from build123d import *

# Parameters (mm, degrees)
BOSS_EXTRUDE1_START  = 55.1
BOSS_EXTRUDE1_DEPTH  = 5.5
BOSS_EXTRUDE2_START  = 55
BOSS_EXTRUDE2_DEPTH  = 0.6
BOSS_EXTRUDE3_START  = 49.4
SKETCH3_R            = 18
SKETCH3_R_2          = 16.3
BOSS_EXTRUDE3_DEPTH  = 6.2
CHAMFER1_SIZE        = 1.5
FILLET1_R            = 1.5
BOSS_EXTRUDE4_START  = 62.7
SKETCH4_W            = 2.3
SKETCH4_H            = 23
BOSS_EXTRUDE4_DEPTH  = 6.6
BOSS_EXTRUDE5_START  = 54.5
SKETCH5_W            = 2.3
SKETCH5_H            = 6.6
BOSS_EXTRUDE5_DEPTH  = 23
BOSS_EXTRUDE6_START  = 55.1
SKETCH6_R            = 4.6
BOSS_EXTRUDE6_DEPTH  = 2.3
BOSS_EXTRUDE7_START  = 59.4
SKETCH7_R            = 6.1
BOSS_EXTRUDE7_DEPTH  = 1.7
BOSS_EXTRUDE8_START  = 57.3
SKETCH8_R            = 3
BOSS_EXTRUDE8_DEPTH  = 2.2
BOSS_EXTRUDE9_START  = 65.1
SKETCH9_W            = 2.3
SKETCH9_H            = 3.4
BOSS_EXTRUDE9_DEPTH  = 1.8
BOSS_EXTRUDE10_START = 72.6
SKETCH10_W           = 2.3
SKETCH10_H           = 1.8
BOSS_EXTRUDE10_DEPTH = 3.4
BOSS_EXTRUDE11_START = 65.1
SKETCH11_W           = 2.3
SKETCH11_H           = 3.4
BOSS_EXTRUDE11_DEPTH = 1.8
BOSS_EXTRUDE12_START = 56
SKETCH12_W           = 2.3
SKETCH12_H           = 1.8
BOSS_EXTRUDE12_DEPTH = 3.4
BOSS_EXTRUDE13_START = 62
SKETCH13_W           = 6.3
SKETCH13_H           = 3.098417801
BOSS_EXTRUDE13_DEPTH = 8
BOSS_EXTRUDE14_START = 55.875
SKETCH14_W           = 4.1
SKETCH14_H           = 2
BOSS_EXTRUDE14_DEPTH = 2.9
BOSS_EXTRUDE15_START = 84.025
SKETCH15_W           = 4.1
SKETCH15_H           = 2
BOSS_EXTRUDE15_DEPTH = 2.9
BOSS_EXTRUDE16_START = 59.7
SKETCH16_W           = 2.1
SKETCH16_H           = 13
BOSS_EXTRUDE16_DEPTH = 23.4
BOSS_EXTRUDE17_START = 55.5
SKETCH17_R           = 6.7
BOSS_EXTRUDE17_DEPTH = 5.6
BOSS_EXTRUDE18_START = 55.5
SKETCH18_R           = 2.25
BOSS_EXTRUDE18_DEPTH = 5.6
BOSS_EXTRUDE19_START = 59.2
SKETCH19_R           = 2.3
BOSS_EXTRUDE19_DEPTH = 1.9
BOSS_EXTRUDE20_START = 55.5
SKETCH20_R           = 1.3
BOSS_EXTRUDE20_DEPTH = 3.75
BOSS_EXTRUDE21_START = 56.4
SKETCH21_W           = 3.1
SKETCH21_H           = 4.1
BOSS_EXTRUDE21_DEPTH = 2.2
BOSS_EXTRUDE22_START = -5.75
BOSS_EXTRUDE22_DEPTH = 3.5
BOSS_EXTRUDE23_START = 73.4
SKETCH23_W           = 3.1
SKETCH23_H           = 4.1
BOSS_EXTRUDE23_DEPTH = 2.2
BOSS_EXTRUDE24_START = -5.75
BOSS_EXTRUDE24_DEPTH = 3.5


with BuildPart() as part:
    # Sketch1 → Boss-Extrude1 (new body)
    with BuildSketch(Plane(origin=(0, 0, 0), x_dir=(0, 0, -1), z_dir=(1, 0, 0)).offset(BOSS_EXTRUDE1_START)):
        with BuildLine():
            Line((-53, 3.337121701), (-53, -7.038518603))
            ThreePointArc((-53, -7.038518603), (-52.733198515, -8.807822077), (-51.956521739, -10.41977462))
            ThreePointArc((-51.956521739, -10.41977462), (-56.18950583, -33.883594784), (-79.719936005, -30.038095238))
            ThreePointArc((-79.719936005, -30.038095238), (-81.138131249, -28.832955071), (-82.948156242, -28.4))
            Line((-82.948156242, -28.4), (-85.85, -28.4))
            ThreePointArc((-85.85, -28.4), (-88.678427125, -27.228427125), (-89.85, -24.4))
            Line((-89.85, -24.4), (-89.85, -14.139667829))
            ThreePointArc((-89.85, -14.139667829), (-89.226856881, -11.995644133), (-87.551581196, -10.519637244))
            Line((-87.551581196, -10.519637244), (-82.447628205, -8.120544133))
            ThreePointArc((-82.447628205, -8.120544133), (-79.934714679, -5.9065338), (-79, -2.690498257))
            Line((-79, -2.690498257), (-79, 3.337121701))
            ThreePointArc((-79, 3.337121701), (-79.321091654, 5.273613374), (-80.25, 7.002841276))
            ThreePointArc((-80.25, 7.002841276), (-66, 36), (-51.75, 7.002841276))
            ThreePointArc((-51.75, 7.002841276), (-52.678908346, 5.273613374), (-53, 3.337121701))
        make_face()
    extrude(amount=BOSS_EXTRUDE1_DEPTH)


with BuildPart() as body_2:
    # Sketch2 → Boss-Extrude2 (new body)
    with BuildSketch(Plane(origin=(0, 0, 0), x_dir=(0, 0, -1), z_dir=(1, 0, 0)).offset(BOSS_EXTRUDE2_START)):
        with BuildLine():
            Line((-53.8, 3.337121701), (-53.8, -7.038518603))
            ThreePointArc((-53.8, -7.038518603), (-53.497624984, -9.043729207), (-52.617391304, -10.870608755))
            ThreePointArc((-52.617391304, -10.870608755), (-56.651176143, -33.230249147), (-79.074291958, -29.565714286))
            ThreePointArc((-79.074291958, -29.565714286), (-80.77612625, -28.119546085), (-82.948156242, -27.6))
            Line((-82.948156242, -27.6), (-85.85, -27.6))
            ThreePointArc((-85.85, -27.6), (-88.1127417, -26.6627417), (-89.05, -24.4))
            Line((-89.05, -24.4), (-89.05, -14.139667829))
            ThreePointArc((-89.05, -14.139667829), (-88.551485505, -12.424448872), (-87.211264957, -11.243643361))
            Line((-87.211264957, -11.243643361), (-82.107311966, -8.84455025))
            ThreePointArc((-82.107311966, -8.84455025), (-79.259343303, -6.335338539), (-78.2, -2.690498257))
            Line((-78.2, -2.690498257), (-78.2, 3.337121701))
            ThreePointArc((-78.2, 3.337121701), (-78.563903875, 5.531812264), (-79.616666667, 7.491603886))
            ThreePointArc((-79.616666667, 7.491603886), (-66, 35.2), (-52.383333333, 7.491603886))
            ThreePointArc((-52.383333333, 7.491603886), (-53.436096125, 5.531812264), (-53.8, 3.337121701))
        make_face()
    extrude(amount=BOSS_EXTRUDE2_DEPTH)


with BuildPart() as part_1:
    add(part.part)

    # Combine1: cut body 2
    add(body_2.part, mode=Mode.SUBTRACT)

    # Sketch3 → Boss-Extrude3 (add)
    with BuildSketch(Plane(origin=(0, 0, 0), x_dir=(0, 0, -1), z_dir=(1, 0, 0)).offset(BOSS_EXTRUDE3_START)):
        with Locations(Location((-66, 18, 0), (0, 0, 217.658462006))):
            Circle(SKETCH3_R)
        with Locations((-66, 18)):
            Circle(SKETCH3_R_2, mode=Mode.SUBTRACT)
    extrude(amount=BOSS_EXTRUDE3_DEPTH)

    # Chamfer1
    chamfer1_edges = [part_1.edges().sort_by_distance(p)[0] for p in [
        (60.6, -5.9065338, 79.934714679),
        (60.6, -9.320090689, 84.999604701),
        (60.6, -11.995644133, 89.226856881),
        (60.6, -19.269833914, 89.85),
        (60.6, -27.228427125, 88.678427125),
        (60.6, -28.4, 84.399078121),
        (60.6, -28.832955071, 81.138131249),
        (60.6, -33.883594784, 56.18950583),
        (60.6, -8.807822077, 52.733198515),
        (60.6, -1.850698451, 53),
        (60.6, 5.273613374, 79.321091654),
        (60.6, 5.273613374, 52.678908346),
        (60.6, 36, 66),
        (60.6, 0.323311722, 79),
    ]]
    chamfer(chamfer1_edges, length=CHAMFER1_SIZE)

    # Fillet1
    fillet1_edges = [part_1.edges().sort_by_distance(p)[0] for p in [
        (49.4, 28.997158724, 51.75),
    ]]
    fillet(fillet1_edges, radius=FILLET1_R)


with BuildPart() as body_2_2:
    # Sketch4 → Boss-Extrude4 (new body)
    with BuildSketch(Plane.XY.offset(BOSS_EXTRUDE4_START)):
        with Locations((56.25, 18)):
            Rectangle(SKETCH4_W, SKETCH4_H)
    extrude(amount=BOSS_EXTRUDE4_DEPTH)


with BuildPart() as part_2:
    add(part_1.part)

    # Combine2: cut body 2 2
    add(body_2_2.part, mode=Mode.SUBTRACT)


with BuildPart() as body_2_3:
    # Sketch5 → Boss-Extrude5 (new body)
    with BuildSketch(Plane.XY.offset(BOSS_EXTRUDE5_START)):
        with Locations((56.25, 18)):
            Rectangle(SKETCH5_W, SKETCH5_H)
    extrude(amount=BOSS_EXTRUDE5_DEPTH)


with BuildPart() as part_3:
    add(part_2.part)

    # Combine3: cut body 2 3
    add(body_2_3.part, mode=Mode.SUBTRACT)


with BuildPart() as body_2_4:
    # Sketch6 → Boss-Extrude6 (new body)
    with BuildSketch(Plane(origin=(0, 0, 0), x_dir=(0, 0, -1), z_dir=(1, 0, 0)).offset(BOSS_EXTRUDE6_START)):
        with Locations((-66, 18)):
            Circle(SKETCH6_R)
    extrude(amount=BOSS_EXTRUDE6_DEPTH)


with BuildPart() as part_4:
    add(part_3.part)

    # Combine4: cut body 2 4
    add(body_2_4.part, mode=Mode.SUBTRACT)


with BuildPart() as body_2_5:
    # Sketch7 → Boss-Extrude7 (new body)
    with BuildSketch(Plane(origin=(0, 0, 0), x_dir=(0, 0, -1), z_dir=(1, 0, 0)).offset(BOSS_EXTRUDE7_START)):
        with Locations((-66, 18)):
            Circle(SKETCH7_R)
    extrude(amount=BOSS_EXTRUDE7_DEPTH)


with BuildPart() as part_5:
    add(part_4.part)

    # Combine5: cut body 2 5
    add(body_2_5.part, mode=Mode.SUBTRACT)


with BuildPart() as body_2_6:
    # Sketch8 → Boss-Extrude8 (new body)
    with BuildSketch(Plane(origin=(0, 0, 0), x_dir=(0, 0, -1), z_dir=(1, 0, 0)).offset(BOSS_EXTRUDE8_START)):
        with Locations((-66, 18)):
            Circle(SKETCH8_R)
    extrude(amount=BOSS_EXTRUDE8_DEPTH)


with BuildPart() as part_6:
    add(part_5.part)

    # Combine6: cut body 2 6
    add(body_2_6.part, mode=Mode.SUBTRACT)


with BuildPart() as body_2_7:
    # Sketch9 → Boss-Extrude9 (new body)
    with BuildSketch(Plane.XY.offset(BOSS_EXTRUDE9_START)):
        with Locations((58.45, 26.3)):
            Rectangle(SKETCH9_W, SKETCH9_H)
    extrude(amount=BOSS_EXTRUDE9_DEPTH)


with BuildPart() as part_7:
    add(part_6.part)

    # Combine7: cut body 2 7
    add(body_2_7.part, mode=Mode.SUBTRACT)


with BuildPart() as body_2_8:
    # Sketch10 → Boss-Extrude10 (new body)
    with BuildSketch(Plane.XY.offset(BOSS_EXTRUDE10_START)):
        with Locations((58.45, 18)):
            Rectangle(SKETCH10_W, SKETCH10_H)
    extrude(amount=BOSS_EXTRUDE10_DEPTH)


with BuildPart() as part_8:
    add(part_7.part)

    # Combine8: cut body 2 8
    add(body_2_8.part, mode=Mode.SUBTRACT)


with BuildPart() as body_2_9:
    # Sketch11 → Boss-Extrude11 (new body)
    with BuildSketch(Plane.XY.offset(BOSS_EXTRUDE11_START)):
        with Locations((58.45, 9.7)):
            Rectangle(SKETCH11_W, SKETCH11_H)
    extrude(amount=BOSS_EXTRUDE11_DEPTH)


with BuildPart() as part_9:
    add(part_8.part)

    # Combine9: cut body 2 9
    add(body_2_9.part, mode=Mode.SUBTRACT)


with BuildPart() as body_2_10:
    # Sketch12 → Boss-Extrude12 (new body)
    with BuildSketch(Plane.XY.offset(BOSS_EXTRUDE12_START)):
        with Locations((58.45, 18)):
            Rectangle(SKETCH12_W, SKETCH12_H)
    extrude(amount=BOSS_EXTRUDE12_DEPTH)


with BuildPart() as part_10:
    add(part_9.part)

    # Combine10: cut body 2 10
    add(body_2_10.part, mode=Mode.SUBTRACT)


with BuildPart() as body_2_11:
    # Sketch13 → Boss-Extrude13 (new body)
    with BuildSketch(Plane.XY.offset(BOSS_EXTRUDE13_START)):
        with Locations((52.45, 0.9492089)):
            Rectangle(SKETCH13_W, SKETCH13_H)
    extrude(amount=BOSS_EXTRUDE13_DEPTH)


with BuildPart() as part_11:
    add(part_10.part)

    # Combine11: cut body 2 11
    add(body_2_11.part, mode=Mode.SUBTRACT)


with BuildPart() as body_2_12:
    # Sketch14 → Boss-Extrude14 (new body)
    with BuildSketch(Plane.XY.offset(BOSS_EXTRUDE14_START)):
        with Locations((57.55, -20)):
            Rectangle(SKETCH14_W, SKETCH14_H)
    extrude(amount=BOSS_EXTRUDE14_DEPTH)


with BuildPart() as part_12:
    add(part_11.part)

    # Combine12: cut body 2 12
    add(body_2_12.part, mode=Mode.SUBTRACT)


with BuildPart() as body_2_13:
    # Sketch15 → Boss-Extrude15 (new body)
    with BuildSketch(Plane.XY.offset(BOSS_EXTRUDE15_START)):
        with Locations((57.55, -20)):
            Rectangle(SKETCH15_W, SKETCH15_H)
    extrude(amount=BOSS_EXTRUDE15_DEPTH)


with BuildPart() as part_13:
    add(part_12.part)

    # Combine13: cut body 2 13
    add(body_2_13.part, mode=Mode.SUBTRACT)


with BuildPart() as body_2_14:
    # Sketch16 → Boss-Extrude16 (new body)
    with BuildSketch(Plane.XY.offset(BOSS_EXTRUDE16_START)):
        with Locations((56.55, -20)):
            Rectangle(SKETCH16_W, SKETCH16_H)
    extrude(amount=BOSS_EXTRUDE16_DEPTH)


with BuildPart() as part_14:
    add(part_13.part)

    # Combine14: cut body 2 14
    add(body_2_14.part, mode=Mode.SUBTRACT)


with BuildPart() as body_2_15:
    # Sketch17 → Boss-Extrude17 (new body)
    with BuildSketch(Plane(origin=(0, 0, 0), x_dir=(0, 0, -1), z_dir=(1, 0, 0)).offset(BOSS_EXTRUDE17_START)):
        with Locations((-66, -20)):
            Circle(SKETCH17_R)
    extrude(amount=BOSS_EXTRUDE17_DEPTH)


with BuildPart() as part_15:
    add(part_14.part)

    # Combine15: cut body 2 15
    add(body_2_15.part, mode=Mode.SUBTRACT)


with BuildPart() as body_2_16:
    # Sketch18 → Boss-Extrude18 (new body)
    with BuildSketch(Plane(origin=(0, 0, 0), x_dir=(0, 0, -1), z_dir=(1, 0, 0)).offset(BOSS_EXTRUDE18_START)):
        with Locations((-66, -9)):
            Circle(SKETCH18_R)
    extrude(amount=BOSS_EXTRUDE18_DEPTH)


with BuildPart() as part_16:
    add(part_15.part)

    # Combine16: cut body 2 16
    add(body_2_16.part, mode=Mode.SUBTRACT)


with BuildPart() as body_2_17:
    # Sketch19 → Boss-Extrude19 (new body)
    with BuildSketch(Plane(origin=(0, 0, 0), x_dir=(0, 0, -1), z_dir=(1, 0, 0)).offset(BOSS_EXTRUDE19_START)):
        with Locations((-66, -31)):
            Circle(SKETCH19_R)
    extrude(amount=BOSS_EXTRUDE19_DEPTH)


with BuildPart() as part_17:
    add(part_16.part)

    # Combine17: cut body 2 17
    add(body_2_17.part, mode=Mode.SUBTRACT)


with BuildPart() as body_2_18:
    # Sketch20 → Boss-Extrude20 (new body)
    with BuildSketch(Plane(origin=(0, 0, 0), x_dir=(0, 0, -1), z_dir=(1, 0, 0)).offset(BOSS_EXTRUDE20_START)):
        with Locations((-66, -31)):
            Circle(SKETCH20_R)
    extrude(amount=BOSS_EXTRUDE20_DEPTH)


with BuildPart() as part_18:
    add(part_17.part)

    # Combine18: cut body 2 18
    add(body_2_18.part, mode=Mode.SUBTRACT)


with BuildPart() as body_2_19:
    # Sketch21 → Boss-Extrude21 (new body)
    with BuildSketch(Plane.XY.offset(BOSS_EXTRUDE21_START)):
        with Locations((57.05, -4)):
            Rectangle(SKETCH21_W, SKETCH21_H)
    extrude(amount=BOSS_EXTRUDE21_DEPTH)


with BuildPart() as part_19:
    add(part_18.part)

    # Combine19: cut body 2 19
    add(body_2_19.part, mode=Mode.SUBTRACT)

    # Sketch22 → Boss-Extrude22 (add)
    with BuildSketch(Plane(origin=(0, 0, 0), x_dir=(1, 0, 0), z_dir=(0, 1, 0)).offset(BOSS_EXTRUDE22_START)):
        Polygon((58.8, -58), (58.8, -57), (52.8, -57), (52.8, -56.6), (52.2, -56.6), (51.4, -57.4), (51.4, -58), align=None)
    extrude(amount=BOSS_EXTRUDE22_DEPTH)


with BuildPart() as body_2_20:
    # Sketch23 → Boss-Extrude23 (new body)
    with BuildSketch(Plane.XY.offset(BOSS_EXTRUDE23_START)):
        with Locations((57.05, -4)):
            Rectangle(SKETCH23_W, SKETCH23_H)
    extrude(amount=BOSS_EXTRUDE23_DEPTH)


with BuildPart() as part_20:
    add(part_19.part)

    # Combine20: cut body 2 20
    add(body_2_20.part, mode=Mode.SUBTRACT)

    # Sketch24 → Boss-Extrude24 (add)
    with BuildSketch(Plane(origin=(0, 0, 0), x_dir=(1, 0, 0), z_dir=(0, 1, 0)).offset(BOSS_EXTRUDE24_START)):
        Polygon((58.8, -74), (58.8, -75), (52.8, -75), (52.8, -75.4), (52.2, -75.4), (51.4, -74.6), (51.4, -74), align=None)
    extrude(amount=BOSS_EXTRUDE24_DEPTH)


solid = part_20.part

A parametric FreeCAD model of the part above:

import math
import FreeCAD as App
import Part
import Sketcher
from FreeCAD import Vector
Q = App.Units.Quantity


def edges_at(feature, points):
    """Names of the edges that pass closest to the given points."""
    edges = feature.Shape.Edges
    near = lambda p: min(range(len(edges)), key=lambda i: edges[i].distToShape(Part.Vertex(*p))[0])
    return sorted({f"Edge{near(p) + 1}" for p in points})


def add_polygon(sketch, points):
    """Adds a closed chain of lines whose ends are joined by coincident constraints."""
    first, n = sketch.GeometryCount, len(points)
    for a, b in zip(points, points[1:] + points[:1]):
        sketch.addGeometry(Part.LineSegment(App.Vector(*a, 0), App.Vector(*b, 0)), False)
    for i in range(n):
        sketch.addConstraint(Sketcher.Constraint("Coincident", first + i, 2, first + (i + 1) % n, 1))

doc = App.newDocument("Part")
body = doc.addObject("PartDesign::Body", "Body")

# Sketch on YZ plane
sketch1 = doc.addObject("Sketcher::SketchObject", "Sketch")
body.addObject(sketch1)
sketch1.AttachmentSupport = (doc.YZ_Plane, [""])
sketch1.MapMode = "FlatFace"
sketch1.AttachmentOffset = App.Placement(Vector(0, 0, 55.1), App.Rotation())
sketch1.addGeometry([
    Part.LineSegment(Vector(-7, 53, 0), Vector(3.3, 53, 0)),  # 0
    Part.ArcOfCircle(Part.Circle(Vector(3.3, 47, 0), Vector(0, 0, 1), 6), math.radians(52), math.radians(90)),  # 1
    Part.ArcOfCircle(Part.Circle(Vector(18, 66, 0), Vector(0, 0, 1), 18), math.radians(-128), math.radians(128)),  # 2
    Part.ArcOfCircle(Part.Circle(Vector(3.3, 85, 0), Vector(0, 0, 1), 6), math.radians(-90), math.radians(-52)),  # 3
    Part.LineSegment(Vector(3.3, 79, 0), Vector(-2.7, 79, 0)),  # 4
    Part.ArcOfCircle(Part.Circle(Vector(-2.7, 85, 0), Vector(0, 0, 1), 6), math.radians(-155), math.radians(-90)),  # 5
    Part.LineSegment(Vector(-8.1, 82.4, 0), Vector(-10.5, 87.6, 0)),  # 6
    Part.ArcOfCircle(Part.Circle(Vector(-14.1, 85.9, 0), Vector(0, 0, 1), 4), math.radians(25), math.radians(90)),  # 7
    Part.LineSegment(Vector(-14.1, 89.8, 0), Vector(-24.4, 89.8, 0)),  # 8
    Part.ArcOfCircle(Part.Circle(Vector(-24.4, 85.9, 0), Vector(0, 0, 1), 4), math.radians(90), math.radians(180)),  # 9
    Part.LineSegment(Vector(-28.4, 85.8, 0), Vector(-28.4, 82.9, 0)),  # 10
    Part.ArcOfCircle(Part.Circle(Vector(-32.4, 82.9, 0), Vector(0, 0, 1), 4), math.radians(-54), math.radians(0)),  # 11
    Part.ArcOfCircle(Part.Circle(Vector(-20, 66, 0), Vector(0, 0, 1), 17), math.radians(126), math.radians(304)),  # 12
    Part.ArcOfCircle(Part.Circle(Vector(-7, 47, 0), Vector(0, 0, 1), 6), math.radians(90), math.radians(124)),  # 13
], False)
sketch1.addConstraint([
    Sketcher.Constraint("Tangent", 0, 2, 1, 2),
    Sketcher.Constraint("Tangent", 1, 1, 2, 1),
    Sketcher.Constraint("Tangent", 2, 2, 3, 2),
    Sketcher.Constraint("Tangent", 3, 1, 4, 1),
    Sketcher.Constraint("Tangent", 4, 2, 5, 2),
    Sketcher.Constraint("Tangent", 5, 1, 6, 1),
    Sketcher.Constraint("Tangent", 6, 2, 7, 1),
    Sketcher.Constraint("Tangent", 7, 2, 8, 1),
    Sketcher.Constraint("Tangent", 8, 2, 9, 1),
    Sketcher.Constraint("Tangent", 9, 2, 10, 1),
    Sketcher.Constraint("Tangent", 10, 2, 11, 2),
    Sketcher.Constraint("Tangent", 11, 1, 12, 1),
    Sketcher.Constraint("Tangent", 12, 2, 13, 2),
    Sketcher.Constraint("Tangent", 13, 1, 0, 1),
    Sketcher.Constraint("Horizontal", 0),
    Sketcher.Constraint("Horizontal", 4),
    Sketcher.Constraint("Horizontal", 8),
    Sketcher.Constraint("Vertical", 10),
    Sketcher.Constraint("Equal", 1, 3),
    Sketcher.Constraint("Equal", 3, 5),
    Sketcher.Constraint("Equal", 7, 9),
    Sketcher.Constraint("Equal", 9, 11),
    Sketcher.Constraint("Equal", 5, 13),
    Sketcher.Constraint("Horizontal", 2, 3, 12, 3),
    Sketcher.Constraint("Vertical", 1, 3, 3, 3),
    Sketcher.Constraint("Radius", 1, 6.0),
    Sketcher.Constraint("Radius", 2, 18.0),
    Sketcher.Constraint("Radius", 7, 4.0),
    Sketcher.Constraint("Radius", 12, 17.0),
    Sketcher.Constraint("DistanceY", -1, 1, 1, 3, 47.0),
    Sketcher.Constraint("DistanceX", -1, 1, 2, 3, 18.0),
    Sketcher.Constraint("DistanceY", -1, 1, 2, 3, 66.0),
    Sketcher.Constraint("DistanceX", 12, 3, -1, 1, 20.0),
    Sketcher.Constraint("DistanceX", 9, 3, -1, 1, 24.4),
    Sketcher.Constraint("DistanceY", 2, 2, 7, 3, 5.6),
    Sketcher.Constraint("DistanceX", 4, 2, 4, 1, 6.02762),
    Sketcher.Constraint("Distance", 6, 5.639679),
])
pad1 = doc.addObject("PartDesign::Pad", "Pad")
body.addObject(pad1)
pad1.Profile = sketch1
pad1.Length = 5.5
body2 = doc.addObject("PartDesign::Body", "Body001")

# Sketch on YZ plane
sketch2 = doc.addObject("Sketcher::SketchObject", "Sketch001")
body2.addObject(sketch2)
sketch2.AttachmentSupport = (doc.getObject("YZ_Plane001"), [""])
sketch2.MapMode = "FlatFace"
sketch2.AttachmentOffset = App.Placement(Vector(0, 0, 55), App.Rotation())
sketch2.addGeometry([
    Part.LineSegment(Vector(-7, 53.8, 0), Vector(3.3, 53.8, 0)),  # 0
    Part.ArcOfCircle(Part.Circle(Vector(3.3, 47, 0), Vector(0, 0, 1), 6.8), math.radians(52), math.radians(90)),  # 1
    Part.ArcOfCircle(Part.Circle(Vector(18, 66, 0), Vector(0, 0, 1), 17.2), math.radians(-128), math.radians(128)),  # 2
    Part.ArcOfCircle(Part.Circle(Vector(3.3, 85, 0), Vector(0, 0, 1), 6.8), math.radians(-90), math.radians(-52)),  # 3
    Part.LineSegment(Vector(3.3, 78.2, 0), Vector(-2.7, 78.2, 0)),  # 4
    Part.ArcOfCircle(Part.Circle(Vector(-2.7, 85, 0), Vector(0, 0, 1), 6.8), math.radians(-155), math.radians(-90)),  # 5
    Part.LineSegment(Vector(-8.8, 82.1, 0), Vector(-11.2, 87.2, 0)),  # 6
    Part.ArcOfCircle(Part.Circle(Vector(-14.1, 85.9, 0), Vector(0, 0, 1), 3.2), math.radians(25), math.radians(90)),  # 7
    Part.LineSegment(Vector(-14.1, 89, 0), Vector(-24.4, 89, 0)),  # 8
    Part.ArcOfCircle(Part.Circle(Vector(-24.4, 85.9, 0), Vector(0, 0, 1), 3.2), math.radians(90), math.radians(180)),  # 9
    Part.LineSegment(Vector(-27.6, 85.8, 0), Vector(-27.6, 82.9, 0)),  # 10
    Part.ArcOfCircle(Part.Circle(Vector(-32.4, 82.9, 0), Vector(0, 0, 1), 4.8), math.radians(-54), math.radians(0)),  # 11
    Part.ArcOfCircle(Part.Circle(Vector(-20, 66, 0), Vector(0, 0, 1), 16.2), math.radians(126), math.radians(304)),  # 12
    Part.ArcOfCircle(Part.Circle(Vector(-7, 47, 0), Vector(0, 0, 1), 6.8), math.radians(90), math.radians(124)),  # 13
], False)
sketch2.addConstraint([
    Sketcher.Constraint("Tangent", 0, 2, 1, 2),
    Sketcher.Constraint("Tangent", 1, 1, 2, 1),
    Sketcher.Constraint("Tangent", 2, 2, 3, 2),
    Sketcher.Constraint("Tangent", 3, 1, 4, 1),
    Sketcher.Constraint("Tangent", 4, 2, 5, 2),
    Sketcher.Constraint("Tangent", 5, 1, 6, 1),
    Sketcher.Constraint("Tangent", 6, 2, 7, 1),
    Sketcher.Constraint("Tangent", 7, 2, 8, 1),
    Sketcher.Constraint("Tangent", 8, 2, 9, 1),
    Sketcher.Constraint("Tangent", 9, 2, 10, 1),
    Sketcher.Constraint("Tangent", 10, 2, 11, 2),
    Sketcher.Constraint("Tangent", 11, 1, 12, 1),
    Sketcher.Constraint("Tangent", 12, 2, 13, 2),
    Sketcher.Constraint("Tangent", 13, 1, 0, 1),
    Sketcher.Constraint("Horizontal", 0),
    Sketcher.Constraint("Horizontal", 4),
    Sketcher.Constraint("Horizontal", 8),
    Sketcher.Constraint("Vertical", 10),
    Sketcher.Constraint("Equal", 1, 3),
    Sketcher.Constraint("Equal", 3, 5),
    Sketcher.Constraint("Equal", 7, 9),
    Sketcher.Constraint("Equal", 5, 13),
    Sketcher.Constraint("Horizontal", 2, 3, 12, 3),
    Sketcher.Constraint("Vertical", 1, 3, 3, 3),
    Sketcher.Constraint("Radius", 1, 6.8),
    Sketcher.Constraint("Radius", 2, 17.2),
    Sketcher.Constraint("Radius", 7, 3.2),
    Sketcher.Constraint("Radius", 11, 4.8),
    Sketcher.Constraint("Radius", 12, 16.2),
    Sketcher.Constraint("DistanceY", -1, 1, 1, 3, 47.0),
    Sketcher.Constraint("DistanceX", -1, 1, 2, 3, 18.0),
    Sketcher.Constraint("DistanceY", -1, 1, 2, 3, 66.0),
    Sketcher.Constraint("DistanceX", 12, 3, -1, 1, 20.0),
    Sketcher.Constraint("DistanceX", 9, 3, -1, 1, 24.4),
    Sketcher.Constraint("DistanceY", -1, 1, 7, 3, 85.85),
    Sketcher.Constraint("DistanceX", 4, 2, 4, 1, 6.02762),
    Sketcher.Constraint("Distance", 6, 5.639679),
])
pad2 = doc.addObject("PartDesign::Pad", "Pad001")
body2.addObject(pad2)
pad2.Profile = sketch2
pad2.Length = 0.6
doc.recompute()

boolean = doc.addObject("PartDesign::Boolean", "Boolean")
body.addObject(boolean)
boolean.Type = "Cut"
boolean.addObjects([body2])

# Sketch on YZ plane
sketch3 = doc.addObject("Sketcher::SketchObject", "Sketch002")
body.addObject(sketch3)
sketch3.AttachmentSupport = (doc.YZ_Plane, [""])
sketch3.MapMode = "FlatFace"
sketch3.AttachmentOffset = App.Placement(Vector(0, 0, 49.4), App.Rotation())
sketch3.addGeometry([
    Part.Circle(Vector(18, 66, 0), Vector(0, 0, 1), 18),
    Part.Circle(Vector(18, 66, 0), Vector(0, 0, 1), 16),
], False)
sketch3.addConstraint([
    Sketcher.Constraint("Coincident", 1, 3, 0, 3),
    Sketcher.Constraint("Diameter", 0, 36.0),
    Sketcher.Constraint("Diameter", 1, 32.6),
    Sketcher.Constraint("DistanceX", -1, 1, 0, 3, 18.0),
    Sketcher.Constraint("DistanceY", -1, 1, 0, 3, 66.0),
])
pad3 = doc.addObject("PartDesign::Pad", "Pad002")
body.addObject(pad3)
pad3.Profile = sketch3
pad3.Length = 6.2
doc.recompute()

chamfer = doc.addObject("PartDesign::Chamfer", "Chamfer")
body.addObject(chamfer)
chamfer.Base = (pad3, edges_at(pad3, [
    (60.6, -5.907, 79.935),
    (60.6, -9.32, 85),
    (60.6, -11.996, 89.227),
    (60.6, -19.27, 89.85),
    (60.6, -27.228, 88.678),
    (60.6, -28.4, 84.399),
    (60.6, -28.833, 81.138),
    (60.6, -33.884, 56.19),
    (60.6, -8.808, 52.733),
    (60.6, -1.851, 53),
    (60.6, 5.274, 79.321),
    (60.6, 5.274, 52.679),
    (60.6, 36, 66),
    (60.6, 0.323, 79),
]))
chamfer.Size = 1.5
doc.recompute()

fillet = doc.addObject("PartDesign::Fillet", "Fillet")
body.addObject(fillet)
fillet.Base = (chamfer, edges_at(chamfer, [(49.4, 28.997, 51.75)]))
fillet.Radius = 1.5
body3 = doc.addObject("PartDesign::Body", "Body002")

# Sketch on XY plane
sketch4 = doc.addObject("Sketcher::SketchObject", "Sketch003")
body3.addObject(sketch4)
sketch4.AttachmentSupport = (doc.getObject("XY_Plane002"), [""])
sketch4.MapMode = "FlatFace"
sketch4.AttachmentOffset = App.Placement(Vector(0, 0, 62.7), App.Rotation())
add_polygon(sketch4, [(55.1, 29.5), (55.1, 6.5), (57.4, 6.5), (57.4, 29.5)])  # lines 0-3
sketch4.addConstraint([
    Sketcher.Constraint("Vertical", 0),
    Sketcher.Constraint("Horizontal", 1),
    Sketcher.Constraint("Vertical", 2),
    Sketcher.Constraint("Horizontal", 3),
    Sketcher.Constraint("DistanceY", 0, 2, 0, 1, 23.0),
    Sketcher.Constraint("DistanceX", 1, 1, 1, 2, 2.3),
    Sketcher.Constraint("DistanceX", -1, 1, 0, 2, 55.1),
    Sketcher.Constraint("DistanceY", -1, 1, 0, 2, 6.5),
])
pad4 = doc.addObject("PartDesign::Pad", "Pad003")
body3.addObject(pad4)
pad4.Profile = sketch4
pad4.Length = 6.6
doc.recompute()

boolean2 = doc.addObject("PartDesign::Boolean", "Boolean001")
body.addObject(boolean2)
boolean2.Type = "Cut"
boolean2.addObjects([body3])
body4 = doc.addObject("PartDesign::Body", "Body003")

# Sketch on XY plane
sketch5 = doc.addObject("Sketcher::SketchObject", "Sketch004")
body4.addObject(sketch5)
sketch5.AttachmentSupport = (doc.getObject("XY_Plane003"), [""])
sketch5.MapMode = "FlatFace"
sketch5.AttachmentOffset = App.Placement(Vector(0, 0, 54.5), App.Rotation())
add_polygon(sketch5, [(55.1, 21.3), (55.1, 14.7), (57.4, 14.7), (57.4, 21.3)])  # lines 0-3
sketch5.addConstraint([
    Sketcher.Constraint("Vertical", 0),
    Sketcher.Constraint("Horizontal", 1),
    Sketcher.Constraint("Vertical", 2),
    Sketcher.Constraint("Horizontal", 3),
    Sketcher.Constraint("DistanceX", 1, 1, 1, 2, 2.3),
    Sketcher.Constraint("DistanceY", 0, 2, 0, 1, 6.6),
    Sketcher.Constraint("DistanceX", -1, 1, 0, 2, 55.1),
    Sketcher.Constraint("DistanceY", -1, 1, 0, 2, 14.7),
])
pad5 = doc.addObject("PartDesign::Pad", "Pad004")
body4.addObject(pad5)
pad5.Profile = sketch5
pad5.Length = 23
doc.recompute()

boolean3 = doc.addObject("PartDesign::Boolean", "Boolean002")
body.addObject(boolean3)
boolean3.Type = "Cut"
boolean3.addObjects([body4])
body5 = doc.addObject("PartDesign::Body", "Body004")

# Sketch on YZ plane
sketch6 = doc.addObject("Sketcher::SketchObject", "Sketch005")
body5.addObject(sketch6)
sketch6.AttachmentSupport = (doc.getObject("YZ_Plane004"), [""])
sketch6.MapMode = "FlatFace"
sketch6.AttachmentOffset = App.Placement(Vector(0, 0, 55.1), App.Rotation())
sketch6.addGeometry(Part.Circle(Vector(18, 66, 0), Vector(0, 0, 1), 4.6), False)
sketch6.addConstraint([
    Sketcher.Constraint("Diameter", 0, 9.2),
    Sketcher.Constraint("DistanceX", -1, 1, 0, 3, 18.0),
    Sketcher.Constraint("DistanceY", -1, 1, 0, 3, 66.0),
])
pad6 = doc.addObject("PartDesign::Pad", "Pad005")
body5.addObject(pad6)
pad6.Profile = sketch6
pad6.Length = 2.3
doc.recompute()

boolean4 = doc.addObject("PartDesign::Boolean", "Boolean003")
body.addObject(boolean4)
boolean4.Type = "Cut"
boolean4.addObjects([body5])
body6 = doc.addObject("PartDesign::Body", "Body005")

# Sketch on YZ plane
sketch7 = doc.addObject("Sketcher::SketchObject", "Sketch006")
body6.addObject(sketch7)
sketch7.AttachmentSupport = (doc.getObject("YZ_Plane005"), [""])
sketch7.MapMode = "FlatFace"
sketch7.AttachmentOffset = App.Placement(Vector(0, 0, 59.4), App.Rotation())
sketch7.addGeometry(Part.Circle(Vector(18, 66, 0), Vector(0, 0, 1), 6), False)
sketch7.addConstraint([
    Sketcher.Constraint("Diameter", 0, 12.2),
    Sketcher.Constraint("DistanceX", -1, 1, 0, 3, 18.0),
    Sketcher.Constraint("DistanceY", -1, 1, 0, 3, 66.0),
])
pad7 = doc.addObject("PartDesign::Pad", "Pad006")
body6.addObject(pad7)
pad7.Profile = sketch7
pad7.Length = 1.7
doc.recompute()

boolean5 = doc.addObject("PartDesign::Boolean", "Boolean004")
body.addObject(boolean5)
boolean5.Type = "Cut"
boolean5.addObjects([body6])
body7 = doc.addObject("PartDesign::Body", "Body006")

# Sketch on YZ plane
sketch8 = doc.addObject("Sketcher::SketchObject", "Sketch007")
body7.addObject(sketch8)
sketch8.AttachmentSupport = (doc.getObject("YZ_Plane006"), [""])
sketch8.MapMode = "FlatFace"
sketch8.AttachmentOffset = App.Placement(Vector(0, 0, 57.3), App.Rotation())
sketch8.addGeometry(Part.Circle(Vector(18, 66, 0), Vector(0, 0, 1), 3), False)
sketch8.addConstraint([
    Sketcher.Constraint("Diameter", 0, 6.0),
    Sketcher.Constraint("DistanceX", -1, 1, 0, 3, 18.0),
    Sketcher.Constraint("DistanceY", -1, 1, 0, 3, 66.0),
])
pad8 = doc.addObject("PartDesign::Pad", "Pad007")
body7.addObject(pad8)
pad8.Profile = sketch8
pad8.Length = 2.2
doc.recompute()

boolean6 = doc.addObject("PartDesign::Boolean", "Boolean005")
body.addObject(boolean6)
boolean6.Type = "Cut"
boolean6.addObjects([body7])
body8 = doc.addObject("PartDesign::Body", "Body007")

# Sketch on XY plane
sketch9 = doc.addObject("Sketcher::SketchObject", "Sketch008")
body8.addObject(sketch9)
sketch9.AttachmentSupport = (doc.getObject("XY_Plane007"), [""])
sketch9.MapMode = "FlatFace"
sketch9.AttachmentOffset = App.Placement(Vector(0, 0, 65.1), App.Rotation())
add_polygon(sketch9, [(57.3, 28), (57.3, 24.6), (59.6, 24.6), (59.6, 28)])  # lines 0-3
sketch9.addConstraint([
    Sketcher.Constraint("Vertical", 0),
    Sketcher.Constraint("Horizontal", 1),
    Sketcher.Constraint("Vertical", 2),
    Sketcher.Constraint("Horizontal", 3),
    Sketcher.Constraint("DistanceX", 1, 1, 1, 2, 2.3),
    Sketcher.Constraint("DistanceY", 0, 2, 0, 1, 3.4),
    Sketcher.Constraint("DistanceY", -1, 1, 2, 2, 28.0),
    Sketcher.Constraint("DistanceX", -1, 1, 0, 2, 57.3),
])
pad9 = doc.addObject("PartDesign::Pad", "Pad008")
body8.addObject(pad9)
pad9.Profile = sketch9
pad9.Length = 1.8
doc.recompute()

boolean7 = doc.addObject("PartDesign::Boolean", "Boolean006")
body.addObject(boolean7)
boolean7.Type = "Cut"
boolean7.addObjects([body8])
body9 = doc.addObject("PartDesign::Body", "Body008")

# Sketch on XY plane
sketch10 = doc.addObject("Sketcher::SketchObject", "Sketch009")
body9.addObject(sketch10)
sketch10.AttachmentSupport = (doc.getObject("XY_Plane008"), [""])
sketch10.MapMode = "FlatFace"
sketch10.AttachmentOffset = App.Placement(Vector(0, 0, 72.6), App.Rotation())
add_polygon(sketch10, [(57.3, 18.9), (57.3, 17.1), (59.6, 17.1), (59.6, 18.9)])  # lines 0-3
sketch10.addConstraint([
    Sketcher.Constraint("Vertical", 0),
    Sketcher.Constraint("Horizontal", 1),
    Sketcher.Constraint("Vertical", 2),
    Sketcher.Constraint("Horizontal", 3),
    Sketcher.Constraint("DistanceX", 1, 1, 1, 2, 2.3),
    Sketcher.Constraint("DistanceY", 0, 2, 0, 1, 1.8),
    Sketcher.Constraint("DistanceX", -1, 1, 0, 2, 57.3),
    Sketcher.Constraint("DistanceY", -1, 1, 0, 2, 17.1),
])
pad10 = doc.addObject("PartDesign::Pad", "Pad009")
body9.addObject(pad10)
pad10.Profile = sketch10
pad10.Length = 3.4
doc.recompute()

boolean8 = doc.addObject("PartDesign::Boolean", "Boolean007")
body.addObject(boolean8)
boolean8.Type = "Cut"
boolean8.addObjects([body9])
body10 = doc.addObject("PartDesign::Body", "Body009")

# Sketch on XY plane
sketch11 = doc.addObject("Sketcher::SketchObject", "Sketch010")
body10.addObject(sketch11)
sketch11.AttachmentSupport = (doc.getObject("XY_Plane009"), [""])
sketch11.MapMode = "FlatFace"
sketch11.AttachmentOffset = App.Placement(Vector(0, 0, 65.1), App.Rotation())
add_polygon(sketch11, [(57.3, 11.4), (57.3, 8), (59.6, 8), (59.6, 11.4)])  # lines 0-3
sketch11.addConstraint([
    Sketcher.Constraint("Vertical", 0),
    Sketcher.Constraint("Horizontal", 1),
    Sketcher.Constraint("Vertical", 2),
    Sketcher.Constraint("Horizontal", 3),
    Sketcher.Constraint("DistanceX", 1, 1, 1, 2, 2.3),
    Sketcher.Constraint("DistanceY", 0, 2, 0, 1, 3.4),
    Sketcher.Constraint("DistanceY", -1, 1, 0, 2, 8.0),
    Sketcher.Constraint("DistanceX", -1, 1, 0, 2, 57.3),
])
pad11 = doc.addObject("PartDesign::Pad", "Pad010")
body10.addObject(pad11)
pad11.Profile = sketch11
pad11.Length = 1.8
doc.recompute()

boolean9 = doc.addObject("PartDesign::Boolean", "Boolean008")
body.addObject(boolean9)
boolean9.Type = "Cut"
boolean9.addObjects([body10])
body11 = doc.addObject("PartDesign::Body", "Body010")

# Sketch on XY plane
sketch12 = doc.addObject("Sketcher::SketchObject", "Sketch011")
body11.addObject(sketch12)
sketch12.AttachmentSupport = (doc.getObject("XY_Plane010"), [""])
sketch12.MapMode = "FlatFace"
sketch12.AttachmentOffset = App.Placement(Vector(0, 0, 56), App.Rotation())
add_polygon(sketch12, [(57.3, 18.9), (57.3, 17.1), (59.6, 17.1), (59.6, 18.9)])  # lines 0-3
sketch12.addConstraint([
    Sketcher.Constraint("Vertical", 0),
    Sketcher.Constraint("Horizontal", 1),
    Sketcher.Constraint("Vertical", 2),
    Sketcher.Constraint("Horizontal", 3),
    Sketcher.Constraint("DistanceX", 1, 1, 1, 2, 2.3),
    Sketcher.Constraint("DistanceY", 0, 2, 0, 1, 1.8),
    Sketcher.Constraint("DistanceX", -1, 1, 0, 2, 57.3),
    Sketcher.Constraint("DistanceY", -1, 1, 0, 2, 17.1),
])
pad12 = doc.addObject("PartDesign::Pad", "Pad011")
body11.addObject(pad12)
pad12.Profile = sketch12
pad12.Length = 3.4
doc.recompute()

boolean10 = doc.addObject("PartDesign::Boolean", "Boolean009")
body.addObject(boolean10)
boolean10.Type = "Cut"
boolean10.addObjects([body11])
body12 = doc.addObject("PartDesign::Body", "Body011")

# Sketch on XY plane
sketch13 = doc.addObject("Sketcher::SketchObject", "Sketch012")
body12.addObject(sketch13)
sketch13.AttachmentSupport = (doc.getObject("XY_Plane011"), [""])
sketch13.MapMode = "FlatFace"
sketch13.AttachmentOffset = App.Placement(Vector(0, 0, 62), App.Rotation())
add_polygon(sketch13, [(49.3, 2.5), (49.3, -0.6), (55.6, -0.6), (55.6, 2.5)])  # lines 0-3
sketch13.addConstraint([
    Sketcher.Constraint("Vertical", 0),
    Sketcher.Constraint("Horizontal", 1),
    Sketcher.Constraint("Vertical", 2),
    Sketcher.Constraint("Horizontal", 3),
    Sketcher.Constraint("DistanceX", 1, 1, 1, 2, 6.3),
    Sketcher.Constraint("DistanceX", -1, 1, 0, 2, 49.3),
    Sketcher.Constraint("DistanceY", 0, 2, -1, 1, 0.6),
    Sketcher.Constraint("DistanceY", 0, 2, 0, 1, 3.098418),
])
pad13 = doc.addObject("PartDesign::Pad", "Pad012")
body12.addObject(pad13)
pad13.Profile = sketch13
pad13.Length = 8
doc.recompute()

boolean11 = doc.addObject("PartDesign::Boolean", "Boolean010")
body.addObject(boolean11)
boolean11.Type = "Cut"
boolean11.addObjects([body12])
body13 = doc.addObject("PartDesign::Body", "Body012")

# Sketch on XY plane
sketch14 = doc.addObject("Sketcher::SketchObject", "Sketch013")
body13.addObject(sketch14)
sketch14.AttachmentSupport = (doc.getObject("XY_Plane012"), [""])
sketch14.MapMode = "FlatFace"
sketch14.AttachmentOffset = App.Placement(Vector(0, 0, 55.875), App.Rotation())
add_polygon(sketch14, [(55.5, -19), (55.5, -21), (59.6, -21), (59.6, -19)])  # lines 0-3
sketch14.addConstraint([
    Sketcher.Constraint("Vertical", 0),
    Sketcher.Constraint("Horizontal", 1),
    Sketcher.Constraint("Vertical", 2),
    Sketcher.Constraint("Horizontal", 3),
    Sketcher.Constraint("DistanceY", 0, 2, 0, 1, 2.0),
    Sketcher.Constraint("DistanceX", 1, 1, 1, 2, 4.1),
    Sketcher.Constraint("DistanceY", 0, 2, -1, 1, 21.0),
    Sketcher.Constraint("DistanceX", -1, 1, 0, 2, 55.5),
])
pad14 = doc.addObject("PartDesign::Pad", "Pad013")
body13.addObject(pad14)
pad14.Profile = sketch14
pad14.Length = 2.9
doc.recompute()

boolean12 = doc.addObject("PartDesign::Boolean", "Boolean011")
body.addObject(boolean12)
boolean12.Type = "Cut"
boolean12.addObjects([body13])
body14 = doc.addObject("PartDesign::Body", "Body013")

# Sketch on XY plane
sketch15 = doc.addObject("Sketcher::SketchObject", "Sketch014")
body14.addObject(sketch15)
sketch15.AttachmentSupport = (doc.getObject("XY_Plane013"), [""])
sketch15.MapMode = "FlatFace"
sketch15.AttachmentOffset = App.Placement(Vector(0, 0, 84.025), App.Rotation())
add_polygon(sketch15, [(55.5, -19), (55.5, -21), (59.6, -21), (59.6, -19)])  # lines 0-3
sketch15.addConstraint([
    Sketcher.Constraint("Vertical", 0),
    Sketcher.Constraint("Horizontal", 1),
    Sketcher.Constraint("Vertical", 2),
    Sketcher.Constraint("Horizontal", 3),
    Sketcher.Constraint("DistanceY", 0, 2, 0, 1, 2.0),
    Sketcher.Constraint("DistanceX", 1, 1, 1, 2, 4.1),
    Sketcher.Constraint("DistanceY", 0, 2, -1, 1, 21.0),
    Sketcher.Constraint("DistanceX", -1, 1, 0, 2, 55.5),
])
pad15 = doc.addObject("PartDesign::Pad", "Pad014")
body14.addObject(pad15)
pad15.Profile = sketch15
pad15.Length = 2.9
doc.recompute()

boolean13 = doc.addObject("PartDesign::Boolean", "Boolean012")
body.addObject(boolean13)
boolean13.Type = "Cut"
boolean13.addObjects([body14])
body15 = doc.addObject("PartDesign::Body", "Body014")

# Sketch on XY plane
sketch16 = doc.addObject("Sketcher::SketchObject", "Sketch015")
body15.addObject(sketch16)
sketch16.AttachmentSupport = (doc.getObject("XY_Plane014"), [""])
sketch16.MapMode = "FlatFace"
sketch16.AttachmentOffset = App.Placement(Vector(0, 0, 59.7), App.Rotation())
add_polygon(sketch16, [(55.5, -13.5), (55.5, -26.5), (57.6, -26.5), (57.6, -13.5)])  # lines 0-3
sketch16.addConstraint([
    Sketcher.Constraint("Vertical", 0),
    Sketcher.Constraint("Horizontal", 1),
    Sketcher.Constraint("Vertical", 2),
    Sketcher.Constraint("Horizontal", 3),
    Sketcher.Constraint("DistanceY", 0, 2, 0, 1, 13.0),
    Sketcher.Constraint("DistanceX", 1, 1, 1, 2, 2.1),
    Sketcher.Constraint("DistanceX", -1, 1, 0, 2, 55.5),
    Sketcher.Constraint("DistanceY", 0, 2, -1, 1, 26.5),
])
pad16 = doc.addObject("PartDesign::Pad", "Pad015")
body15.addObject(pad16)
pad16.Profile = sketch16
pad16.Length = 23.4
doc.recompute()

boolean14 = doc.addObject("PartDesign::Boolean", "Boolean013")
body.addObject(boolean14)
boolean14.Type = "Cut"
boolean14.addObjects([body15])
body16 = doc.addObject("PartDesign::Body", "Body015")

# Sketch on YZ plane
sketch17 = doc.addObject("Sketcher::SketchObject", "Sketch016")
body16.addObject(sketch17)
sketch17.AttachmentSupport = (doc.getObject("YZ_Plane015"), [""])
sketch17.MapMode = "FlatFace"
sketch17.AttachmentOffset = App.Placement(Vector(0, 0, 55.5), App.Rotation())
sketch17.addGeometry(Part.Circle(Vector(-20, 66, 0), Vector(0, 0, 1), 7), False)
sketch17.addConstraint([
    Sketcher.Constraint("Diameter", 0, 13.4),
    Sketcher.Constraint("DistanceX", 0, 3, -1, 1, 20.0),
    Sketcher.Constraint("DistanceY", -1, 1, 0, 3, 66.0),
])
pad17 = doc.addObject("PartDesign::Pad", "Pad016")
body16.addObject(pad17)
pad17.Profile = sketch17
pad17.Length = 5.6
doc.recompute()

boolean15 = doc.addObject("PartDesign::Boolean", "Boolean014")
body.addObject(boolean15)
boolean15.Type = "Cut"
boolean15.addObjects([body16])
body17 = doc.addObject("PartDesign::Body", "Body016")

# Sketch on YZ plane
sketch18 = doc.addObject("Sketcher::SketchObject", "Sketch017")
body17.addObject(sketch18)
sketch18.AttachmentSupport = (doc.getObject("YZ_Plane016"), [""])
sketch18.MapMode = "FlatFace"
sketch18.AttachmentOffset = App.Placement(Vector(0, 0, 55.5), App.Rotation())
sketch18.addGeometry(Part.Circle(Vector(-9, 66, 0), Vector(0, 0, 1), 2.2), False)
sketch18.addConstraint([
    Sketcher.Constraint("Diameter", 0, 4.5),
    Sketcher.Constraint("DistanceX", 0, 3, -1, 1, 9.0),
    Sketcher.Constraint("DistanceY", -1, 1, 0, 3, 66.0),
])
pad18 = doc.addObject("PartDesign::Pad", "Pad017")
body17.addObject(pad18)
pad18.Profile = sketch18
pad18.Length = 5.6
doc.recompute()

boolean16 = doc.addObject("PartDesign::Boolean", "Boolean015")
body.addObject(boolean16)
boolean16.Type = "Cut"
boolean16.addObjects([body17])
body18 = doc.addObject("PartDesign::Body", "Body017")

# Sketch on YZ plane
sketch19 = doc.addObject("Sketcher::SketchObject", "Sketch018")
body18.addObject(sketch19)
sketch19.AttachmentSupport = (doc.getObject("YZ_Plane017"), [""])
sketch19.MapMode = "FlatFace"
sketch19.AttachmentOffset = App.Placement(Vector(0, 0, 59.2), App.Rotation())
sketch19.addGeometry(Part.Circle(Vector(-31, 66, 0), Vector(0, 0, 1), 2.3), False)
sketch19.addConstraint([
    Sketcher.Constraint("Diameter", 0, 4.6),
    Sketcher.Constraint("DistanceX", 0, 3, -1, 1, 31.0),
    Sketcher.Constraint("DistanceY", -1, 1, 0, 3, 66.0),
])
pad19 = doc.addObject("PartDesign::Pad", "Pad018")
body18.addObject(pad19)
pad19.Profile = sketch19
pad19.Length = 1.9
doc.recompute()

boolean17 = doc.addObject("PartDesign::Boolean", "Boolean016")
body.addObject(boolean17)
boolean17.Type = "Cut"
boolean17.addObjects([body18])
body19 = doc.addObject("PartDesign::Body", "Body018")

# Sketch on YZ plane
sketch20 = doc.addObject("Sketcher::SketchObject", "Sketch019")
body19.addObject(sketch20)
sketch20.AttachmentSupport = (doc.getObject("YZ_Plane018"), [""])
sketch20.MapMode = "FlatFace"
sketch20.AttachmentOffset = App.Placement(Vector(0, 0, 55.5), App.Rotation())
sketch20.addGeometry(Part.Circle(Vector(-31, 66, 0), Vector(0, 0, 1), 1.3), False)
sketch20.addConstraint([
    Sketcher.Constraint("Diameter", 0, 2.6),
    Sketcher.Constraint("DistanceX", 0, 3, -1, 1, 31.0),
    Sketcher.Constraint("DistanceY", -1, 1, 0, 3, 66.0),
])
pad20 = doc.addObject("PartDesign::Pad", "Pad019")
body19.addObject(pad20)
pad20.Profile = sketch20
pad20.Length = 3.75
doc.recompute()

boolean18 = doc.addObject("PartDesign::Boolean", "Boolean017")
body.addObject(boolean18)
boolean18.Type = "Cut"
boolean18.addObjects([body19])
body20 = doc.addObject("PartDesign::Body", "Body019")

# Sketch on XY plane
sketch21 = doc.addObject("Sketcher::SketchObject", "Sketch020")
body20.addObject(sketch21)
sketch21.AttachmentSupport = (doc.getObject("XY_Plane019"), [""])
sketch21.MapMode = "FlatFace"
sketch21.AttachmentOffset = App.Placement(Vector(0, 0, 56.4), App.Rotation())
add_polygon(sketch21, [(55.5, -1.9), (55.5, -6), (58.6, -6), (58.6, -1.9)])  # lines 0-3
sketch21.addConstraint([
    Sketcher.Constraint("Vertical", 0),
    Sketcher.Constraint("Horizontal", 1),
    Sketcher.Constraint("Vertical", 2),
    Sketcher.Constraint("Horizontal", 3),
    Sketcher.Constraint("DistanceX", 1, 1, 1, 2, 3.1),
    Sketcher.Constraint("DistanceY", 0, 2, 0, 1, 4.1),
    Sketcher.Constraint("DistanceX", -1, 1, 0, 2, 55.5),
    Sketcher.Constraint("DistanceY", 0, 2, -1, 1, 6.05),
])
pad21 = doc.addObject("PartDesign::Pad", "Pad020")
body20.addObject(pad21)
pad21.Profile = sketch21
pad21.Length = 2.2
doc.recompute()

boolean19 = doc.addObject("PartDesign::Boolean", "Boolean018")
body.addObject(boolean19)
boolean19.Type = "Cut"
boolean19.addObjects([body20])

# Sketch on XZ plane
sketch22 = doc.addObject("Sketcher::SketchObject", "Sketch021")
body.addObject(sketch22)
sketch22.AttachmentSupport = (doc.XZ_Plane, [""])
sketch22.MapMode = "FlatFace"
sketch22.AttachmentOffset = App.Placement(Vector(0, 0, 5.75), App.Rotation())
add_polygon(sketch22, [(58.8, 58), (58.8, 57), (52.8, 57), (52.8, 56.6), (52.2, 56.6), (51.4, 57.4), (51.4, 58)])  # lines 0-6
sketch22.addConstraint([
    Sketcher.Constraint("Vertical", 0),
    Sketcher.Constraint("Horizontal", 1),
    Sketcher.Constraint("Vertical", 2),
    Sketcher.Constraint("Horizontal", 3),
    Sketcher.Constraint("Vertical", 5),
    Sketcher.Constraint("Horizontal", 6),
    Sketcher.Constraint("Equal", 3, 5),
    Sketcher.Constraint("DistanceX", 1, 2, 1, 1, 6.0),
    Sketcher.Constraint("DistanceY", 0, 2, 0, 1, 1.0),
    Sketcher.Constraint("Angle", 4, Q("135 deg")),
    Sketcher.Constraint("DistanceX", 3, 2, 3, 1, 0.6),
    Sketcher.Constraint("DistanceX", 6, 1, 6, 2, 7.4),
    Sketcher.Constraint("DistanceY", -1, 1, 0, 2, 57.0),
    Sketcher.Constraint("DistanceX", -1, 1, 0, 2, 58.8),
])
pad22 = doc.addObject("PartDesign::Pad", "Pad021")
body.addObject(pad22)
pad22.Profile = sketch22
pad22.Length = 3.5
pad22.Reversed = True
body21 = doc.addObject("PartDesign::Body", "Body020")

# Sketch on XY plane
sketch23 = doc.addObject("Sketcher::SketchObject", "Sketch022")
body21.addObject(sketch23)
sketch23.AttachmentSupport = (doc.getObject("XY_Plane020"), [""])
sketch23.MapMode = "FlatFace"
sketch23.AttachmentOffset = App.Placement(Vector(0, 0, 73.4), App.Rotation())
add_polygon(sketch23, [(55.5, -1.9), (55.5, -6), (58.6, -6), (58.6, -1.9)])  # lines 0-3
sketch23.addConstraint([
    Sketcher.Constraint("Vertical", 0),
    Sketcher.Constraint("Horizontal", 1),
    Sketcher.Constraint("Vertical", 2),
    Sketcher.Constraint("Horizontal", 3),
    Sketcher.Constraint("DistanceX", 1, 1, 1, 2, 3.1),
    Sketcher.Constraint("DistanceY", 0, 2, 0, 1, 4.1),
    Sketcher.Constraint("DistanceX", -1, 1, 0, 2, 55.5),
    Sketcher.Constraint("DistanceY", 0, 2, -1, 1, 6.05),
])
pad23 = doc.addObject("PartDesign::Pad", "Pad022")
body21.addObject(pad23)
pad23.Profile = sketch23
pad23.Length = 2.2
doc.recompute()

boolean20 = doc.addObject("PartDesign::Boolean", "Boolean019")
body.addObject(boolean20)
boolean20.Type = "Cut"
boolean20.addObjects([body21])

# Sketch on XZ plane
sketch24 = doc.addObject("Sketcher::SketchObject", "Sketch023")
body.addObject(sketch24)
sketch24.AttachmentSupport = (doc.XZ_Plane, [""])
sketch24.MapMode = "FlatFace"
sketch24.AttachmentOffset = App.Placement(Vector(0, 0, 5.75), App.Rotation())
add_polygon(sketch24, [(58.8, 75), (58.8, 74), (51.4, 74), (51.4, 74.6), (52.2, 75.4), (52.8, 75.4), (52.8, 75)])  # lines 0-6
sketch24.addConstraint([
    Sketcher.Constraint("Vertical", 0),
    Sketcher.Constraint("Horizontal", 1),
    Sketcher.Constraint("Vertical", 2),
    Sketcher.Constraint("Horizontal", 4),
    Sketcher.Constraint("Vertical", 5),
    Sketcher.Constraint("Horizontal", 6),
    Sketcher.Constraint("Equal", 4, 2),
    Sketcher.Constraint("DistanceX", 6, 1, 6, 2, 6.0),
    Sketcher.Constraint("DistanceY", 0, 2, 0, 1, 1.0),
    Sketcher.Constraint("Angle", 3, Q("45 deg")),
    Sketcher.Constraint("DistanceX", 1, 2, 1, 1, 7.4),
    Sketcher.Constraint("DistanceX", 4, 1, 4, 2, 0.6),
    Sketcher.Constraint("DistanceY", -1, 1, 0, 2, 74.0),
    Sketcher.Constraint("DistanceX", -1, 1, 0, 2, 58.8),
])
pad24 = doc.addObject("PartDesign::Pad", "Pad023")
body.addObject(pad24)
pad24.Profile = sketch24
pad24.Length = 3.5
pad24.Reversed = True

doc.recompute()
